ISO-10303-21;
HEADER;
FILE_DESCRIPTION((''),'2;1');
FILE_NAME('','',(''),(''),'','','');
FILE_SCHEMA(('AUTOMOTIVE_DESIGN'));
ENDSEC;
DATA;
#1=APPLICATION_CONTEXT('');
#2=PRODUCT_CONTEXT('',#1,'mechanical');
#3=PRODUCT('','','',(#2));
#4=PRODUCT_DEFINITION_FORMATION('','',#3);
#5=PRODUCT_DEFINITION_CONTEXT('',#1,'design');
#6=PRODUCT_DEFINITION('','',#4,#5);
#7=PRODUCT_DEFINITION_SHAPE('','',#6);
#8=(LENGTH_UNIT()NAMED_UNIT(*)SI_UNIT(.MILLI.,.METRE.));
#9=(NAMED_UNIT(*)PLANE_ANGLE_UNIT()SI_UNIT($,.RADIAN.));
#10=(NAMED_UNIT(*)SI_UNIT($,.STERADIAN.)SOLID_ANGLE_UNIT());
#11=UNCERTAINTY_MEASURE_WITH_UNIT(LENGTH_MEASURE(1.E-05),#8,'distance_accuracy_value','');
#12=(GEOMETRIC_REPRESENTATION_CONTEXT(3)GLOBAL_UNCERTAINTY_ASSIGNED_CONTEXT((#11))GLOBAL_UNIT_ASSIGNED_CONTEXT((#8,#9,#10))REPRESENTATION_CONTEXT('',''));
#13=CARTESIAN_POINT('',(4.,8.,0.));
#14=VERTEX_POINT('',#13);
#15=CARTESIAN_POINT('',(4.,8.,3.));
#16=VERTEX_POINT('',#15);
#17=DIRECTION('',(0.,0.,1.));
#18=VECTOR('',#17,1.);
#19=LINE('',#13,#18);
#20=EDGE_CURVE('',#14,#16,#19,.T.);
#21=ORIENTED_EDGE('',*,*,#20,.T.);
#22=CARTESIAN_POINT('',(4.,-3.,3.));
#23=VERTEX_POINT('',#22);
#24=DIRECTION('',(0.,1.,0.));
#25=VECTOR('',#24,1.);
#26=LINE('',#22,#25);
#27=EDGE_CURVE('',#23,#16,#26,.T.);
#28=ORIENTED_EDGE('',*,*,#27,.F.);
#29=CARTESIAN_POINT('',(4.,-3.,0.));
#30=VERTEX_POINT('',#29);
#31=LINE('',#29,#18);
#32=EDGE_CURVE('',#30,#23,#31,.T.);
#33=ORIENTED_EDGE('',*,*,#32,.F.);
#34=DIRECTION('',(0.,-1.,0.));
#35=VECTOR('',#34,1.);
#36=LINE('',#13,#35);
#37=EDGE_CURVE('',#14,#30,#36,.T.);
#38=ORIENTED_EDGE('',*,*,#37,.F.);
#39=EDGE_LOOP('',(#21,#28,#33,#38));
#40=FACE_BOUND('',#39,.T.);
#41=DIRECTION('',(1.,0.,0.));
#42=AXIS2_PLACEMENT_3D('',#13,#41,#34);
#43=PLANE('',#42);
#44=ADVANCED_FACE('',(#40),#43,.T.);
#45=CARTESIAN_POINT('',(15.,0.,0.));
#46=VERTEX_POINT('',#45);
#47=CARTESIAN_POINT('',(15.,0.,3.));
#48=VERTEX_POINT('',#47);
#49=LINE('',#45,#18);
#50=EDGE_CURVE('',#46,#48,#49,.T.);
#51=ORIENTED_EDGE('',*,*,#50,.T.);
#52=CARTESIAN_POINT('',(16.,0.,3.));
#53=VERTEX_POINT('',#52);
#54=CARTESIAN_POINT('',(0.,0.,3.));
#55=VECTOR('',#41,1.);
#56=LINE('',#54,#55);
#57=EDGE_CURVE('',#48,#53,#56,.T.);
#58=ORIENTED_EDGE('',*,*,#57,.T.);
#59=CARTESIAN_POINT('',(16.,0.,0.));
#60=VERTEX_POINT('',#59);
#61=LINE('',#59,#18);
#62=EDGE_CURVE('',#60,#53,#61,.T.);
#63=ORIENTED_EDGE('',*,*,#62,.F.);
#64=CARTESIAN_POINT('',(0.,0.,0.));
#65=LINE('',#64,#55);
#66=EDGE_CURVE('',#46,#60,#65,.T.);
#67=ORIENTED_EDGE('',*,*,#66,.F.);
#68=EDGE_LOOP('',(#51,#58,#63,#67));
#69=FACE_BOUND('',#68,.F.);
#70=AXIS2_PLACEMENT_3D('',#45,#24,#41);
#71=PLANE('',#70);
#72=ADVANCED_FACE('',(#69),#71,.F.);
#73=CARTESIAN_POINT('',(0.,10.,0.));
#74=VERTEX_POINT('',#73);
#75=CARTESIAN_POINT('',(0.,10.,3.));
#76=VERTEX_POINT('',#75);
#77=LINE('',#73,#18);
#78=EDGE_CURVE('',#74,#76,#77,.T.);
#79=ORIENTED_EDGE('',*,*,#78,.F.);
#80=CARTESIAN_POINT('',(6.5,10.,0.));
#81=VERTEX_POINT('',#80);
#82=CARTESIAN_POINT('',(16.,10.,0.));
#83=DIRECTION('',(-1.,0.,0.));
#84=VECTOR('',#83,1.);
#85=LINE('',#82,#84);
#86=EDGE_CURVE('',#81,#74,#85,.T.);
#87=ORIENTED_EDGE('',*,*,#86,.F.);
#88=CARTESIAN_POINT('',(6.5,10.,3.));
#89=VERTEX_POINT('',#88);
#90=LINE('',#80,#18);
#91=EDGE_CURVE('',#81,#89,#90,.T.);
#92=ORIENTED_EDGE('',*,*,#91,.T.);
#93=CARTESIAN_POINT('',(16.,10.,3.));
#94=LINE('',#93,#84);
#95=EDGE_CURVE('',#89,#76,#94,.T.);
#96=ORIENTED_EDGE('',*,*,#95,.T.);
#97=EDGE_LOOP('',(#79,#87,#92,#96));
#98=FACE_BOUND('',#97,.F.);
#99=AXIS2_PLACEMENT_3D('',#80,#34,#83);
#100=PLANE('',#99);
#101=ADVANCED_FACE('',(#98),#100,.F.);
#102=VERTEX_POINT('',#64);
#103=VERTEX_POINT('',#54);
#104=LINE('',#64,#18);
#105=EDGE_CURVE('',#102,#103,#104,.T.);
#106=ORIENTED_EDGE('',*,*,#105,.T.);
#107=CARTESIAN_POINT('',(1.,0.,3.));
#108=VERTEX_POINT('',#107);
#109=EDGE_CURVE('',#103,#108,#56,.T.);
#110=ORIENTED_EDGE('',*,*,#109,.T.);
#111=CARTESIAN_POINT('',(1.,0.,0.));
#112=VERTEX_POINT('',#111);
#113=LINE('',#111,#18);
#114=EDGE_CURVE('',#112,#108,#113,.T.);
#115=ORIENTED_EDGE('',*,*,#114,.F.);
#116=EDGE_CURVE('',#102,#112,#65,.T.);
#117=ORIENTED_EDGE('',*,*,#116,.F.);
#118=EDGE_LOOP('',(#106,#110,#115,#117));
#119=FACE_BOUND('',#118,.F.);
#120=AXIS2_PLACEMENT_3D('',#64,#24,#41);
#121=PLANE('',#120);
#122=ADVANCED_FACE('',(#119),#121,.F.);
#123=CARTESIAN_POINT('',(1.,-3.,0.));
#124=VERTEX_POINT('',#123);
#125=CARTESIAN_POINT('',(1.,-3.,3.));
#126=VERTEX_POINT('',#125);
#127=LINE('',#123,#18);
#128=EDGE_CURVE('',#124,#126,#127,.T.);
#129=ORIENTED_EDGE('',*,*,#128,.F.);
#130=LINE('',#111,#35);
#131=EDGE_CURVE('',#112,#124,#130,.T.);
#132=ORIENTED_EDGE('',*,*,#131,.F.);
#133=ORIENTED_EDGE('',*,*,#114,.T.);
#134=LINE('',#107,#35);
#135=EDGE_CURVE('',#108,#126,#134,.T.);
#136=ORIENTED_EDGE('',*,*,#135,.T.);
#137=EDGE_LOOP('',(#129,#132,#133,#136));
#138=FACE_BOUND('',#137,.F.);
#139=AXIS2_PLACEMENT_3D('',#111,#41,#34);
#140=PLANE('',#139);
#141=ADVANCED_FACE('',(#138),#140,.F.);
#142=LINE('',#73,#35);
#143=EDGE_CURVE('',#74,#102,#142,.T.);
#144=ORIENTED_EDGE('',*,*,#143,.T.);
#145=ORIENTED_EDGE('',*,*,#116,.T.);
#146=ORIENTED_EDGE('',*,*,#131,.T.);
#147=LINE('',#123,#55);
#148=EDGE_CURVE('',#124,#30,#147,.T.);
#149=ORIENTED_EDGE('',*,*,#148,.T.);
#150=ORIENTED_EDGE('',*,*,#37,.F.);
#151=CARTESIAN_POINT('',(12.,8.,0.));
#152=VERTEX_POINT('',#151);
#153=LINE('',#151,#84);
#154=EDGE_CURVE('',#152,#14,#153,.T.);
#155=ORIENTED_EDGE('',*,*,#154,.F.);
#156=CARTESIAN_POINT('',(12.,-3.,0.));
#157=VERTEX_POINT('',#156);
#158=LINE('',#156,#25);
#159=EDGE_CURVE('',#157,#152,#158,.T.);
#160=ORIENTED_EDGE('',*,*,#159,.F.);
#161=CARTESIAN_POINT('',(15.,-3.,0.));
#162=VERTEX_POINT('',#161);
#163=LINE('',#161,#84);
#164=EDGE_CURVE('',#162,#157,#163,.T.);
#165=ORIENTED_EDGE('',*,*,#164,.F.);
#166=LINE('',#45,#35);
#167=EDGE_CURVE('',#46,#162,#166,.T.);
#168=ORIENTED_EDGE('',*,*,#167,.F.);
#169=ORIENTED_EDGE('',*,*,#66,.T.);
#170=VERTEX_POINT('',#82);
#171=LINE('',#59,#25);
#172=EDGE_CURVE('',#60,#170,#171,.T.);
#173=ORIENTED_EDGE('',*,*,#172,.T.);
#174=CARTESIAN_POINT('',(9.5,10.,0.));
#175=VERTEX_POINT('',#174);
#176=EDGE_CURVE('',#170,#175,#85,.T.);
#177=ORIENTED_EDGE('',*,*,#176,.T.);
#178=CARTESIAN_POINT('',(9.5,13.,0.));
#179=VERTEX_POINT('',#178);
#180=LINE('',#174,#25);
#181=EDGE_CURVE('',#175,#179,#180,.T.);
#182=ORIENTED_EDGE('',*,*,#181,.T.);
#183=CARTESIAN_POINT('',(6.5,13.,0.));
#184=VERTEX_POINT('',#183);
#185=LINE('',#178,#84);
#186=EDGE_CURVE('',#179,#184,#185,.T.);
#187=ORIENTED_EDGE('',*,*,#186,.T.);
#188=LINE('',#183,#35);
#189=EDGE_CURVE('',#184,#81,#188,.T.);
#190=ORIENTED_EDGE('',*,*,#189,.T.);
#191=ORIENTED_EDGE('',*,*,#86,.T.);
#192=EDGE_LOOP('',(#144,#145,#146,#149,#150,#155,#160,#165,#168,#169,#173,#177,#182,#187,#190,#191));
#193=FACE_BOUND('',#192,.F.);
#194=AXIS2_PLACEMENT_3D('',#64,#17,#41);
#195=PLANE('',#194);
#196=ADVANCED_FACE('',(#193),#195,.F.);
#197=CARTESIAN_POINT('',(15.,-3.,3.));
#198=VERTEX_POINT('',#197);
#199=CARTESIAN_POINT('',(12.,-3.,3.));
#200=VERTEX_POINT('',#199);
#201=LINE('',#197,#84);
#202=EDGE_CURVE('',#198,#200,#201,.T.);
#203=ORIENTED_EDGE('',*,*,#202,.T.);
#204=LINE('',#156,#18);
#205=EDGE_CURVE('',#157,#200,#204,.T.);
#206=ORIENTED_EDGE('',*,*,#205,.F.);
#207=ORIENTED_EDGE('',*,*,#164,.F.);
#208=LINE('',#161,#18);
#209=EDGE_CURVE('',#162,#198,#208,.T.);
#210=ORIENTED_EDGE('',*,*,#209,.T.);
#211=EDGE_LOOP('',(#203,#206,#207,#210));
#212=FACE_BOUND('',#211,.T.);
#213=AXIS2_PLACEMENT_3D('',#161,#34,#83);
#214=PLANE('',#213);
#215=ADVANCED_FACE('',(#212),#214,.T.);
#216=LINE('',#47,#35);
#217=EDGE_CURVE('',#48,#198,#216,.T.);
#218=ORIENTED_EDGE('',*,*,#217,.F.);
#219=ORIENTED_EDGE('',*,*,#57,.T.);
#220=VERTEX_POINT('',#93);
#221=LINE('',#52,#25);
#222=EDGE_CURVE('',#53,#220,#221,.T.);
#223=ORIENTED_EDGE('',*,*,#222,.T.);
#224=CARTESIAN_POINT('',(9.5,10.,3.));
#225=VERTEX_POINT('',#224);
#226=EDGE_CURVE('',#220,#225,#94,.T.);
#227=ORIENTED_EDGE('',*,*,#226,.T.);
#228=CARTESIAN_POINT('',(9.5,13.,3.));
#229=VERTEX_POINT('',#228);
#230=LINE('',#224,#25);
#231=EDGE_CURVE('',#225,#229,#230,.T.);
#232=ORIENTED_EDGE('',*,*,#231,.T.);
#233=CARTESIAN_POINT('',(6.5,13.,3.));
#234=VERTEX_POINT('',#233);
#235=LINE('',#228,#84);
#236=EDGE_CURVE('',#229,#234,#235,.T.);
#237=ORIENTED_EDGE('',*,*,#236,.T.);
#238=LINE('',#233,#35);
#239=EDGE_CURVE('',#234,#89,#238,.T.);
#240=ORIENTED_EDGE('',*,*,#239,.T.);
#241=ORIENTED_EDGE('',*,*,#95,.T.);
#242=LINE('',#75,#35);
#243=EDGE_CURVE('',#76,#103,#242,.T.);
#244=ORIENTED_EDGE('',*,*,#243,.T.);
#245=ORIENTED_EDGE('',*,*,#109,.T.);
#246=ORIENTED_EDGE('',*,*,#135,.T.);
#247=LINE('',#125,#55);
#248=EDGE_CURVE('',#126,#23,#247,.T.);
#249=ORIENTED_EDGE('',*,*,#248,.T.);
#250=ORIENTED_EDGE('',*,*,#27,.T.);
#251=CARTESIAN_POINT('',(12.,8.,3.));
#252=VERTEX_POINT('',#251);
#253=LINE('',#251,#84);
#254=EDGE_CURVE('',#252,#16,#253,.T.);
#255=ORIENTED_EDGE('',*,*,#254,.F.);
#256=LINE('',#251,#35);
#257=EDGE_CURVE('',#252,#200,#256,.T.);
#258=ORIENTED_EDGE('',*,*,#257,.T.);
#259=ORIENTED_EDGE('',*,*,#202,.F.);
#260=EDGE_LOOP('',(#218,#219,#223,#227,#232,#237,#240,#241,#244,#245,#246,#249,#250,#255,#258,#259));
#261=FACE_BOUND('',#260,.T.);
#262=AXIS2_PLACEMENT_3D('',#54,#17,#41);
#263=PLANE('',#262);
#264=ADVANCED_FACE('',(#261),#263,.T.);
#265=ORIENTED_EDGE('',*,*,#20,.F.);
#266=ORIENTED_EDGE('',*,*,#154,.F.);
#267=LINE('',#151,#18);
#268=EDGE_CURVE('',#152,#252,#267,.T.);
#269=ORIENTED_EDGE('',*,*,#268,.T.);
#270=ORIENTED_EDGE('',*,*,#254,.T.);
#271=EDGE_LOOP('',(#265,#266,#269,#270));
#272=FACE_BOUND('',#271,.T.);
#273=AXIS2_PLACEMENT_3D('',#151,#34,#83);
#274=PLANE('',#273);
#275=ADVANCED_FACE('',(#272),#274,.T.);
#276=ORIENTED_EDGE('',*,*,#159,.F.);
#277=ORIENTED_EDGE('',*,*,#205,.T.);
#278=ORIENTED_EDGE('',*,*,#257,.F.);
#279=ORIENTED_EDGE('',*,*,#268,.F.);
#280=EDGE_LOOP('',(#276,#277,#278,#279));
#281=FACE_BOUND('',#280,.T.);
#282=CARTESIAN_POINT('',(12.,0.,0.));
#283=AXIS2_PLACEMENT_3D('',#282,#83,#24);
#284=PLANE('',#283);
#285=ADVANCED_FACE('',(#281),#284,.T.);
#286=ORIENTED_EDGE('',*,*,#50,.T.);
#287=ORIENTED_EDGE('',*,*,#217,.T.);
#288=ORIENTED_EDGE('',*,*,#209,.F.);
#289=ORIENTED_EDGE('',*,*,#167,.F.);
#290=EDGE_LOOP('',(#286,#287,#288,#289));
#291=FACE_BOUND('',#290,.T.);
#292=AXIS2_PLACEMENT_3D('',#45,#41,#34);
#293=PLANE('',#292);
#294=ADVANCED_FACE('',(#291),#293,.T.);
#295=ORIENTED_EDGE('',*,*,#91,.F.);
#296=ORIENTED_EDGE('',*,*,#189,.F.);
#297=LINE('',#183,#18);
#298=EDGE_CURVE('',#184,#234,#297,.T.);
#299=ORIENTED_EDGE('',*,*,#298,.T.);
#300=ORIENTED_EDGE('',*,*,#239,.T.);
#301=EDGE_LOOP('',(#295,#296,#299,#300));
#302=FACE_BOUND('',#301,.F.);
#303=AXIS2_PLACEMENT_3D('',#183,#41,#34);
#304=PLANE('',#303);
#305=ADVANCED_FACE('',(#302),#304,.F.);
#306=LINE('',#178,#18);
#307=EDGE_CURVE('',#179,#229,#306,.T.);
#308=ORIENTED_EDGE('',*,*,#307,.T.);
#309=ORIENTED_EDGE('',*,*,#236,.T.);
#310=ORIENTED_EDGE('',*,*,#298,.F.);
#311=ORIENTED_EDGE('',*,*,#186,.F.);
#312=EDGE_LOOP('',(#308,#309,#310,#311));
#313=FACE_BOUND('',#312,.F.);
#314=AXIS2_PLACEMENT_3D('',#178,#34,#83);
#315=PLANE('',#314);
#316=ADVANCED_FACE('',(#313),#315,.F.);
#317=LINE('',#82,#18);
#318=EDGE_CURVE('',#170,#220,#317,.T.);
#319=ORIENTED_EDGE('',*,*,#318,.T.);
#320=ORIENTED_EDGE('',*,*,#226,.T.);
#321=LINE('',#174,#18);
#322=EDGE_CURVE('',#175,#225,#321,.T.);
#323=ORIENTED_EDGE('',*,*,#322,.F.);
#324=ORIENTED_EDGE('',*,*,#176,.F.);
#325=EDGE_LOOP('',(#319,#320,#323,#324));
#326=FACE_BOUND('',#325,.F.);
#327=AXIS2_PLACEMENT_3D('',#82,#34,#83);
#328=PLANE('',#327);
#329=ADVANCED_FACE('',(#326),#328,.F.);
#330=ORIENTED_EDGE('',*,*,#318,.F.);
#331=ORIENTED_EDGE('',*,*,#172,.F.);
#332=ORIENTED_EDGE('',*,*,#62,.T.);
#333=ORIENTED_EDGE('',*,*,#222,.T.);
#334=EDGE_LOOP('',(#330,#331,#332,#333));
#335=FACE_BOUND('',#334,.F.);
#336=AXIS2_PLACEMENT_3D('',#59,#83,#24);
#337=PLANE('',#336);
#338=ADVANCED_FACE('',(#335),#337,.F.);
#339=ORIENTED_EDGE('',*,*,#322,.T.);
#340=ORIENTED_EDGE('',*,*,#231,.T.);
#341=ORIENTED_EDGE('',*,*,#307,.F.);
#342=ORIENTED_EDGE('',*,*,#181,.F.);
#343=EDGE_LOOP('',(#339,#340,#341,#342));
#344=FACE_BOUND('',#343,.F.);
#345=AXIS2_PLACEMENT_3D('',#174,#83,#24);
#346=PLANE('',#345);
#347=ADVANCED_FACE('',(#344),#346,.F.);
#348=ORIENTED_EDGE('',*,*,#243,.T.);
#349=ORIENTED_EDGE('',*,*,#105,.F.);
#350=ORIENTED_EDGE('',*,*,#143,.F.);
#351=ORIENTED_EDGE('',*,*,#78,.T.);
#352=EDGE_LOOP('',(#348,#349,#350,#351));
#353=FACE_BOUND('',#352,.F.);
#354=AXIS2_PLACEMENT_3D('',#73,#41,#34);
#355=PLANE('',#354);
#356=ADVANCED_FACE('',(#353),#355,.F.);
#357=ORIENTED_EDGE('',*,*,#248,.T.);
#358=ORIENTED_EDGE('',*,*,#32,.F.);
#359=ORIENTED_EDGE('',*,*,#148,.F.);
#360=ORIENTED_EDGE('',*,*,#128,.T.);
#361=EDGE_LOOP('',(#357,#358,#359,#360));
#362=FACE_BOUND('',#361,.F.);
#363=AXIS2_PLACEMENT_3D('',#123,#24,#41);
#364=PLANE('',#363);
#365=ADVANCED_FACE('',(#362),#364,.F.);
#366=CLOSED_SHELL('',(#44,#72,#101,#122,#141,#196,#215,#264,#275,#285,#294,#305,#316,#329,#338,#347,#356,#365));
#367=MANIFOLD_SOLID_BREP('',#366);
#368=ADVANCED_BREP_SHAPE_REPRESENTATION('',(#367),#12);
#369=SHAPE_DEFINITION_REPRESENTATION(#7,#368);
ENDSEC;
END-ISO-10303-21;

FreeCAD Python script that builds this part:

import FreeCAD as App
import Part
import Sketcher

doc = App.newDocument("Part")
body = doc.addObject("PartDesign::Body", "Body")

# Sketch on XY plane
sketch1 = body.newObject("Sketcher::SketchObject", "Sketch")
sketch1.AttachmentSupport = (doc.getObject("XY_Plane"), [""])
sketch1.MapMode = "FlatFace"
sketch1.addGeometry([
    Part.LineSegment(App.Vector(0, 10, 0), App.Vector(0, 0, 0)),  # 0
    Part.LineSegment(App.Vector(0, 0, 0), App.Vector(1, 0, 0)),  # 1
    Part.LineSegment(App.Vector(1, 0, 0), App.Vector(1, -3, 0)),  # 2
    Part.LineSegment(App.Vector(1, -3, 0), App.Vector(4, -3, 0)),  # 3
    Part.LineSegment(App.Vector(4, -3, 0), App.Vector(4, 8, 0)),  # 4
    Part.LineSegment(App.Vector(4, 8, 0), App.Vector(12, 8, 0)),  # 5
    Part.LineSegment(App.Vector(12, 8, 0), App.Vector(12, -3, 0)),  # 6
    Part.LineSegment(App.Vector(12, -3, 0), App.Vector(15, -3, 0)),  # 7
    Part.LineSegment(App.Vector(15, -3, 0), App.Vector(15, 0, 0)),  # 8
    Part.LineSegment(App.Vector(15, 0, 0), App.Vector(16, 0, 0)),  # 9
    Part.LineSegment(App.Vector(16, 0, 0), App.Vector(16, 10, 0)),  # 10
    Part.LineSegment(App.Vector(16, 10, 0), App.Vector(9.5, 10, 0)),  # 11
    Part.LineSegment(App.Vector(9.5, 10, 0), App.Vector(9.5, 13, 0)),  # 12
    Part.LineSegment(App.Vector(9.5, 13, 0), App.Vector(6.5, 13, 0)),  # 13
    Part.LineSegment(App.Vector(6.5, 13, 0), App.Vector(6.5, 10, 0)),  # 14
    Part.LineSegment(App.Vector(6.5, 10, 0), App.Vector(0, 10, 0)),  # 15
], False)
sketch1.addConstraint([
    Sketcher.Constraint("Coincident", 0, 2, 1, 1),
    Sketcher.Constraint("Coincident", 1, 2, 2, 1),
    Sketcher.Constraint("Coincident", 2, 2, 3, 1),
    Sketcher.Constraint("Coincident", 3, 2, 4, 1),
    Sketcher.Constraint("Coincident", 4, 2, 5, 1),
    Sketcher.Constraint("Coincident", 5, 2, 6, 1),
    Sketcher.Constraint("Coincident", 6, 2, 7, 1),
    Sketcher.Constraint("Coincident", 7, 2, 8, 1),
    Sketcher.Constraint("Coincident", 8, 2, 9, 1),
    Sketcher.Constraint("Coincident", 9, 2, 10, 1),
    Sketcher.Constraint("Coincident", 10, 2, 11, 1),
    Sketcher.Constraint("Coincident", 11, 2, 12, 1),
    Sketcher.Constraint("Coincident", 12, 2, 13, 1),
    Sketcher.Constraint("Coincident", 13, 2, 14, 1),
    Sketcher.Constraint("Coincident", 14, 2, 15, 1),
    Sketcher.Constraint("Coincident", 15, 2, 0, 1),
    Sketcher.Constraint("Vertical", 0),
    Sketcher.Constraint("Horizontal", 1),
    Sketcher.Constraint("Vertical", 2),
    Sketcher.Constraint("Horizontal", 3),
    Sketcher.Constraint("Vertical", 4),
    Sketcher.Constraint("Horizontal", 5),
    Sketcher.Constraint("Vertical", 6),
    Sketcher.Constraint("Horizontal", 7),
    Sketcher.Constraint("Vertical", 8),
    Sketcher.Constraint("Horizontal", 9),
    Sketcher.Constraint("Vertical", 10),
    Sketcher.Constraint("Horizontal", 11),
    Sketcher.Constraint("Vertical", 12),
    Sketcher.Constraint("Horizontal", 13),
    Sketcher.Constraint("Vertical", 14),
    Sketcher.Constraint("Horizontal", 15),
    Sketcher.Constraint("Coincident", 0, 2, -1, 1),
    Sketcher.Constraint("PointOnObject", 8, 2, -1),
    Sketcher.Constraint("Horizontal", 3, 2, 6, 2),
    Sketcher.Constraint("Horizontal", 11, 2, 14, 2),
    Sketcher.Constraint("Equal", 3, 7),
    Sketcher.Constraint("Equal", 1, 9),
    Sketcher.Constraint("Equal", 7, 13),
    Sketcher.Constraint("Equal", 11, 15),
    Sketcher.Constraint("Equal", 13, 2),
    Sketcher.Constraint("Equal", 8, 12),
    Sketcher.Constraint("DistanceX", 3, 1, 3, 2, 3.0),
    Sketcher.Constraint("DistanceX", 5, 1, 5, 2, 8.0),
    Sketcher.Constraint("DistanceY", 0, 2, 0, 1, 10.0),
    Sketcher.Constraint("DistanceX", -1, 1, 3, 2, 4.0),
    Sketcher.Constraint("DistanceY", -1, 1, 4, 2, 8.0),
])
pad1 = body.newObject("PartDesign::Pad", "Pad")
pad1.Profile = sketch1
pad1.Length = 3

doc.recompute()
